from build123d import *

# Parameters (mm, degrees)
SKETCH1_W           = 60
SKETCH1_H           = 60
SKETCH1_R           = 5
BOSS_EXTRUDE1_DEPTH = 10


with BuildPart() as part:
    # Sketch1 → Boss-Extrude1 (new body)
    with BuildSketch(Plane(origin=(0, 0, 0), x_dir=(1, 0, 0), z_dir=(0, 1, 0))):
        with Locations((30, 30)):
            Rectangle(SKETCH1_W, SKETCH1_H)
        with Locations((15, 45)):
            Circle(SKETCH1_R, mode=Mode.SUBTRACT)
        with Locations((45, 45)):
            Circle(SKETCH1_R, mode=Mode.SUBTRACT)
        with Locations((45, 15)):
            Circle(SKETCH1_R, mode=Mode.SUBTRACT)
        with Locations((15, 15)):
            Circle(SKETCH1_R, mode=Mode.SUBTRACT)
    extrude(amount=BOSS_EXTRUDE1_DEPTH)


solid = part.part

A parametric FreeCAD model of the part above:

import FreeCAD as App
import Part
import Sketcher

V = App.Vector

doc = App.newDocument("Part")
body = doc.addObject("PartDesign::Body", "Body")

# Sketch on XZ plane
sketch1 = body.newObject("Sketcher::SketchObject", "Sketch")
sketch1.AttachmentSupport = (doc.getObject("XZ_Plane"), [""])
sketch1.MapMode = "FlatFace"
sketch1.addGeometry(Part.LineSegment(V(0, -60, 0), V(0, 0, 0)), False)
sketch1.addGeometry(Part.LineSegment(V(0, 0, 0), V(60, 0, 0)), False)
sketch1.addGeometry(Part.LineSegment(V(60, 0, 0), V(60, -60, 0)), False)
sketch1.addGeometry(Part.LineSegment(V(60, -60, 0), V(0, -60, 0)), False)
sketch1.addGeometry(Part.Circle(V(15, -15, 0), V(0, 0, 1), 5), False)
sketch1.addGeometry(Part.Circle(V(45, -15, 0), V(0, 0, 1), 5), False)
sketch1.addGeometry(Part.Circle(V(15, -45, 0), V(0, 0, 1), 5), False)
sketch1.addGeometry(Part.Circle(V(45, -45, 0), V(0, 0, 1), 5), False)
sketch1.addConstraint(Sketcher.Constraint("Coincident", 0, 2, 1, 1))
sketch1.addConstraint(Sketcher.Constraint("Coincident", 1, 2, 2, 1))
sketch1.addConstraint(Sketcher.Constraint("Coincident", 2, 2, 3, 1))
sketch1.addConstraint(Sketcher.Constraint("Coincident", 3, 2, 0, 1))
sketch1.addConstraint(Sketcher.Constraint("Vertical", 0))
sketch1.addConstraint(Sketcher.Constraint("Horizontal", 1))
sketch1.addConstraint(Sketcher.Constraint("Vertical", 2))
sketch1.addConstraint(Sketcher.Constraint("Horizontal", 3))
sketch1.addConstraint(Sketcher.Constraint("Coincident", 0, 2, -1, 1))
sketch1.addConstraint(Sketcher.Constraint("Equal", 4, 5))
sketch1.addConstraint(Sketcher.Constraint("Equal", 5, 6))
sketch1.addConstraint(Sketcher.Constraint("Equal", 6, 7))
sketch1.addConstraint(Sketcher.Constraint("Horizontal", 4, 3, 5, 3))
sketch1.addConstraint(Sketcher.Constraint("Horizontal", 6, 3, 7, 3))
sketch1.addConstraint(Sketcher.Constraint("Vertical", 4, 3, 6, 3))
sketch1.addConstraint(Sketcher.Constraint("Vertical", 5, 3, 7, 3))
sketch1.addConstraint(Sketcher.Constraint("Equal", 3, 0))
sketch1.addConstraint(Sketcher.Constraint("Diameter", 4, 10.0))
sketch1.addConstraint(Sketcher.Constraint("DistanceX", 1, 1, 1, 2, 60.0))
sketch1.addConstraint(Sketcher.Constraint("DistanceX", -1, 1, 4, 3, 15.0))
sketch1.addConstraint(Sketcher.Constraint("DistanceY", 4, 3, -1, 1, 15.0))
sketch1.addConstraint(Sketcher.Constraint("DistanceX", -1, 1, 5, 3, 45.0))
sketch1.addConstraint(Sketcher.Constraint("DistanceY", 6, 3, -1, 1, 45.0))
pad1 = body.newObject("PartDesign::Pad", "Pad")
pad1.Profile = sketch1
pad1.Length = 10
pad1.Reversed = True

doc.recompute()
